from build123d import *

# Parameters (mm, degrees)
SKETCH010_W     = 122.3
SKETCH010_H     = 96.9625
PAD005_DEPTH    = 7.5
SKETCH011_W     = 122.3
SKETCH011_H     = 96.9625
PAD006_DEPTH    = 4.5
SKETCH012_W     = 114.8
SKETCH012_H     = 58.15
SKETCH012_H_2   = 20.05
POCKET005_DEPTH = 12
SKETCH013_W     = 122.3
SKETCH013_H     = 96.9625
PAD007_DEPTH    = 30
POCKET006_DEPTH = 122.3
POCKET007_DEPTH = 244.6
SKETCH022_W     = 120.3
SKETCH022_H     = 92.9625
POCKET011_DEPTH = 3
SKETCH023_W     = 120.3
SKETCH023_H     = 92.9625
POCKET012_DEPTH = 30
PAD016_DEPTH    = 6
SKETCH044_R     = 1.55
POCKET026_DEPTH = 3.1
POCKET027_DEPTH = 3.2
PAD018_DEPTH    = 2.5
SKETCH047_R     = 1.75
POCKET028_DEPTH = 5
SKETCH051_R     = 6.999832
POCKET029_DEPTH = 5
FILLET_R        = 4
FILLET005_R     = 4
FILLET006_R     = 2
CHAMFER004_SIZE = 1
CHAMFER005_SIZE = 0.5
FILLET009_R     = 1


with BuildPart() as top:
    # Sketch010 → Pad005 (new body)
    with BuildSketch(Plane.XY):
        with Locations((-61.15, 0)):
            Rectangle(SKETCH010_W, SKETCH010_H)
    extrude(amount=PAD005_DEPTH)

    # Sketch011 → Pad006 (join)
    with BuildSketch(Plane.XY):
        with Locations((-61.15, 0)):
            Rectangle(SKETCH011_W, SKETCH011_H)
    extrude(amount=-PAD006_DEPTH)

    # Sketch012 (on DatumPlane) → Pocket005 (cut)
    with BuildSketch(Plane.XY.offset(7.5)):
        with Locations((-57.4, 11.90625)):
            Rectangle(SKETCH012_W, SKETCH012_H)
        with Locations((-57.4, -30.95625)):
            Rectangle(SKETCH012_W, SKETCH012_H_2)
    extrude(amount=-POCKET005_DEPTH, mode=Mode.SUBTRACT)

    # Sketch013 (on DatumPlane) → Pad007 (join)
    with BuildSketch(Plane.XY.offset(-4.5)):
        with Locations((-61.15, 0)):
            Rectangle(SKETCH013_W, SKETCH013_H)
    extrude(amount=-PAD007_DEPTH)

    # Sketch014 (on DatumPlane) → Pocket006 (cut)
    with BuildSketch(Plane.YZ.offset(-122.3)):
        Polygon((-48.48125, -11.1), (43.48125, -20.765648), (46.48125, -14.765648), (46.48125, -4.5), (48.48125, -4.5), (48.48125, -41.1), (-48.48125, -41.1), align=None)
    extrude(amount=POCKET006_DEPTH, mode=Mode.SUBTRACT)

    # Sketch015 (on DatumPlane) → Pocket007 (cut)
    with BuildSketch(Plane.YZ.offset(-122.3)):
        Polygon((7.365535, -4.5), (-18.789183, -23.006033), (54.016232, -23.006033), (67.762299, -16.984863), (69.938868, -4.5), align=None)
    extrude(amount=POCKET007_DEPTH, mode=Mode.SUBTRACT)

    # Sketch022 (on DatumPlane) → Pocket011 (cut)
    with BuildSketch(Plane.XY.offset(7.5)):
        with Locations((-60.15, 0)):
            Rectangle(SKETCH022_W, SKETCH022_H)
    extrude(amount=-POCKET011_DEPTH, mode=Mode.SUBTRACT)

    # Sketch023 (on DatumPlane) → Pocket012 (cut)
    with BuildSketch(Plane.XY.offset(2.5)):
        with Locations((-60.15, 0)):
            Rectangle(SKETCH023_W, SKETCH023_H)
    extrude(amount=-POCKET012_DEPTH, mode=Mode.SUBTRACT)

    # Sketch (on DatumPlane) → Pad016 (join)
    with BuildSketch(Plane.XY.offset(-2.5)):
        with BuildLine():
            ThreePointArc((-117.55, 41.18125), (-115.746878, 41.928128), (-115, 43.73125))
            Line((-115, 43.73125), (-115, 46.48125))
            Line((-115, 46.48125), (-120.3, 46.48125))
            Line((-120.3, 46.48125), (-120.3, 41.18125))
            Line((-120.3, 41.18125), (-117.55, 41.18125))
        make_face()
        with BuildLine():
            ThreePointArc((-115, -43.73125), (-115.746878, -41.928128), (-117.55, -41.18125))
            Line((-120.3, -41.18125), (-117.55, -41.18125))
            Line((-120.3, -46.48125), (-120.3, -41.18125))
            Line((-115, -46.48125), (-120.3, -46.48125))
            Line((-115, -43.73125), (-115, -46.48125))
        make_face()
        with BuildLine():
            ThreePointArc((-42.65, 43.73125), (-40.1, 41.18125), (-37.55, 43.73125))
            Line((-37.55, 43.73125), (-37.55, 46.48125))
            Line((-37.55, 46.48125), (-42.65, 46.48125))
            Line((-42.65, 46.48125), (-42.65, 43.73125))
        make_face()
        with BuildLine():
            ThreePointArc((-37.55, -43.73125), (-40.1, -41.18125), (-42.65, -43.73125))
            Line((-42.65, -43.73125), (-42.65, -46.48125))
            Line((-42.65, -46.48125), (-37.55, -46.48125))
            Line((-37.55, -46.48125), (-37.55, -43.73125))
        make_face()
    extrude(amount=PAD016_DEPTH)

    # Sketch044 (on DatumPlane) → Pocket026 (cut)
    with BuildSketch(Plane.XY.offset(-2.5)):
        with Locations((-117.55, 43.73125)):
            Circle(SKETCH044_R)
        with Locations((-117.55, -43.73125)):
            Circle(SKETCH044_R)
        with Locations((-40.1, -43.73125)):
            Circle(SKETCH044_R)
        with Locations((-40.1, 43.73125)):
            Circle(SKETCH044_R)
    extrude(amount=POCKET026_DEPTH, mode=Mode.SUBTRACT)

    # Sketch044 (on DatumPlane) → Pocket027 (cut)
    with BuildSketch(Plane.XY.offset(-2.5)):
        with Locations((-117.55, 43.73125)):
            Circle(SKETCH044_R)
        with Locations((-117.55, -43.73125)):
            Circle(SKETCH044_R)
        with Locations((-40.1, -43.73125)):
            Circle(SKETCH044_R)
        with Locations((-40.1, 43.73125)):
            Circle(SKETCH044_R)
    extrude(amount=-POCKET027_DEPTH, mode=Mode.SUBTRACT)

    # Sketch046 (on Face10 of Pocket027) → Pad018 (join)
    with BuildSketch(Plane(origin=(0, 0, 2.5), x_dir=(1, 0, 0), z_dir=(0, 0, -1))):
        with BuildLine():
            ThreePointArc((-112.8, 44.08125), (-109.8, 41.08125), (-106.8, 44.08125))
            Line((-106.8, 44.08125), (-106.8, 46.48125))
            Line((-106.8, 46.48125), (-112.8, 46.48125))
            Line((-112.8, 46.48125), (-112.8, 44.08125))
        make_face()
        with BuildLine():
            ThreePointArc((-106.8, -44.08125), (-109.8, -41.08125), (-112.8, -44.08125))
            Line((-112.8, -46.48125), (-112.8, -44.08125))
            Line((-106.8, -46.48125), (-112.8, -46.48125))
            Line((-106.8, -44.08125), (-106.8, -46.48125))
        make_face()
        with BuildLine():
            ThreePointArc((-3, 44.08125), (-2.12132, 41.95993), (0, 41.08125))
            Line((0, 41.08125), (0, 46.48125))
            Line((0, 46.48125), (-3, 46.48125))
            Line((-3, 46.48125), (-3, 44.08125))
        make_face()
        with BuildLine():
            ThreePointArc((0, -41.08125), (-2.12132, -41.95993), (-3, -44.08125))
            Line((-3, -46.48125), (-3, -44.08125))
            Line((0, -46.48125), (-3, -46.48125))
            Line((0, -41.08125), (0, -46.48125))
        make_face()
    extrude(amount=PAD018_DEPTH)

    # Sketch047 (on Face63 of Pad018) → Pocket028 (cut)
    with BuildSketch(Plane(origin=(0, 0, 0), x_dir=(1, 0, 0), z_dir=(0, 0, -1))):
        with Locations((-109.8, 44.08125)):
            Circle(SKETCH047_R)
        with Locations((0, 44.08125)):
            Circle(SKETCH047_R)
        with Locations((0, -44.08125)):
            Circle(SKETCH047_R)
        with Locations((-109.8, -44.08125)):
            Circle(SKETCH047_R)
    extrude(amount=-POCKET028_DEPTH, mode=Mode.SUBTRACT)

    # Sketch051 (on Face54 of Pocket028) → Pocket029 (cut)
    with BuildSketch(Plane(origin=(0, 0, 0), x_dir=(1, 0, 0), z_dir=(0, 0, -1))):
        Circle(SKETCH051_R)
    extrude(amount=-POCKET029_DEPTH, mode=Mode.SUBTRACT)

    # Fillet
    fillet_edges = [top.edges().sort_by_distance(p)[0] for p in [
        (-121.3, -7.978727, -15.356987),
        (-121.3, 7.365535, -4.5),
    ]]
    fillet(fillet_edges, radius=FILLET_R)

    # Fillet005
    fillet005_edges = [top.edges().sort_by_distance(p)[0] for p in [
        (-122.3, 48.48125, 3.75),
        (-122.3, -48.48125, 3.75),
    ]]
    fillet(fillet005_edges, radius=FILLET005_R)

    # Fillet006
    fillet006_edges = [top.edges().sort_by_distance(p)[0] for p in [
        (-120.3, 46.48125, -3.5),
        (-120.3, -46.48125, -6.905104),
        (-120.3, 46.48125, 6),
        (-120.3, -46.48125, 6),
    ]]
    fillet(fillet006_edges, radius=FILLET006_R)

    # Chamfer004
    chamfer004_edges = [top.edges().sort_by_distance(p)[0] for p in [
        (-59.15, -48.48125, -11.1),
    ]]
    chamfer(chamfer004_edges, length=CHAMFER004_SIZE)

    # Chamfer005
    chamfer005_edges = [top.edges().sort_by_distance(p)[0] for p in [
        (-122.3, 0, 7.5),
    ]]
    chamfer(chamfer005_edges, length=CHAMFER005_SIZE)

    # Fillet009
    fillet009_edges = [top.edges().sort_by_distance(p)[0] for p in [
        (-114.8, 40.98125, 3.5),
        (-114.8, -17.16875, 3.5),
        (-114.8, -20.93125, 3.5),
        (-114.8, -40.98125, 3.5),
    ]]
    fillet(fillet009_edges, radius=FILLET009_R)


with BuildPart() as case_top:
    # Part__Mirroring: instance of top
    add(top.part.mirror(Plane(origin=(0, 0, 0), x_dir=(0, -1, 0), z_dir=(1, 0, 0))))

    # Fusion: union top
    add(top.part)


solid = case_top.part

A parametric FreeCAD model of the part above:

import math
import FreeCAD as App
import Part
import Sketcher

V = App.Vector
Q = App.Units.Quantity


def edges_at(feature, points):
    """Names of the edges that pass closest to the given points."""
    edges = feature.Shape.Edges
    near = lambda p: min(range(len(edges)), key=lambda i: edges[i].distToShape(Part.Vertex(*p))[0])
    return sorted({f"Edge{near(p) + 1}" for p in points})

doc = App.newDocument("Part")
body = doc.addObject("PartDesign::Body", "Body")

# Sketch on XY plane
sketch1 = body.newObject("Sketcher::SketchObject", "Sketch")
sketch1.AttachmentSupport = (doc.getObject("XY_Plane"), [""])
sketch1.MapMode = "FlatFace"
sketch1.addGeometry(Part.LineSegment(V(-122, 48, 0), V(-122, -48, 0)), False)
sketch1.addGeometry(Part.LineSegment(V(-122, -48, 0), V(0, -48, 0)), False)
sketch1.addGeometry(Part.LineSegment(V(0, -48, 0), V(0, 48, 0)), False)
sketch1.addGeometry(Part.LineSegment(V(0, 48, 0), V(-122, 48, 0)), False)
sketch1.addConstraint(Sketcher.Constraint("Coincident", 0, 2, 1, 1))
sketch1.addConstraint(Sketcher.Constraint("Coincident", 1, 2, 2, 1))
sketch1.addConstraint(Sketcher.Constraint("Coincident", 2, 2, 3, 1))
sketch1.addConstraint(Sketcher.Constraint("Coincident", 3, 2, 0, 1))
sketch1.addConstraint(Sketcher.Constraint("Vertical", 0))
sketch1.addConstraint(Sketcher.Constraint("Horizontal", 1))
sketch1.addConstraint(Sketcher.Constraint("Vertical", 2))
sketch1.addConstraint(Sketcher.Constraint("Horizontal", 3))
sketch1.addConstraint(Sketcher.Constraint("Symmetric", 1, 2, 2, 2, -1, 1))
sketch1.addConstraint(Sketcher.Constraint("DistanceX", 1, 1, 1, 2, Q("122.3 mm")))
sketch1.addConstraint(Sketcher.Constraint("DistanceY", 0, 2, 0, 1, Q("96.9625 mm")))
pad1 = body.newObject("PartDesign::Pad", "Pad")
pad1.Profile = sketch1
pad1.Length = 7.5

# Sketch on XY plane
sketch2 = body.newObject("Sketcher::SketchObject", "Sketch001")
sketch2.AttachmentSupport = (doc.getObject("XY_Plane"), [""])
sketch2.MapMode = "FlatFace"
sketch2.addGeometry(Part.LineSegment(V(-122, 48, 0), V(-122, -48, 0)), False)
sketch2.addGeometry(Part.LineSegment(V(-122, -48, 0), V(0, -48, 0)), False)
sketch2.addGeometry(Part.LineSegment(V(0, -48, 0), V(0, 48, 0)), False)
sketch2.addGeometry(Part.LineSegment(V(0, 48, 0), V(-122, 48, 0)), False)
sketch2.addConstraint(Sketcher.Constraint("Coincident", 0, 2, 1, 1))
sketch2.addConstraint(Sketcher.Constraint("Coincident", 1, 2, 2, 1))
sketch2.addConstraint(Sketcher.Constraint("Coincident", 2, 2, 3, 1))
sketch2.addConstraint(Sketcher.Constraint("Coincident", 3, 2, 0, 1))
sketch2.addConstraint(Sketcher.Constraint("Vertical", 0))
sketch2.addConstraint(Sketcher.Constraint("Horizontal", 1))
sketch2.addConstraint(Sketcher.Constraint("Vertical", 2))
sketch2.addConstraint(Sketcher.Constraint("Horizontal", 3))
sketch2.addConstraint(Sketcher.Constraint("Symmetric", 1, 2, 2, 2, -1, 1))
sketch2.addConstraint(Sketcher.Constraint("DistanceX", 1, 1, 1, 2, Q("122.3 mm")))
sketch2.addConstraint(Sketcher.Constraint("DistanceY", 0, 2, 0, 1, Q("96.9625 mm")))
pad2 = body.newObject("PartDesign::Pad", "Pad001")
pad2.Profile = sketch2
pad2.Length = 4.5
pad2.Reversed = True

# Sketch on XY plane
sketch3 = body.newObject("Sketcher::SketchObject", "Sketch002")
sketch3.AttachmentSupport = (doc.getObject("XY_Plane"), [""])
sketch3.MapMode = "FlatFace"
sketch3.AttachmentOffset = App.Placement(V(0, 0, 7.5), App.Rotation())
sketch3.addGeometry(Part.LineSegment(V(-115, 41, 0), V(-115, -17, 0)), False)
sketch3.addGeometry(Part.LineSegment(V(-115, -17, 0), V(0, -17, 0)), False)
sketch3.addGeometry(Part.LineSegment(V(0, -17, 0), V(0, 41, 0)), False)
sketch3.addGeometry(Part.LineSegment(V(0, 41, 0), V(-115, 41, 0)), False)
sketch3.addGeometry(Part.LineSegment(V(-115, -21, 0), V(-115, -41, 0)), False)
sketch3.addGeometry(Part.LineSegment(V(-115, -41, 0), V(0, -41, 0)), False)
sketch3.addGeometry(Part.LineSegment(V(0, -41, 0), V(0, -21, 0)), False)
sketch3.addGeometry(Part.LineSegment(V(0, -21, 0), V(-115, -21, 0)), False)
sketch3.addConstraint(Sketcher.Constraint("Coincident", 0, 2, 1, 1))
sketch3.addConstraint(Sketcher.Constraint("Coincident", 1, 2, 2, 1))
sketch3.addConstraint(Sketcher.Constraint("Coincident", 2, 2, 3, 1))
sketch3.addConstraint(Sketcher.Constraint("Coincident", 3, 2, 0, 1))
sketch3.addConstraint(Sketcher.Constraint("Coincident", 4, 2, 5, 1))
sketch3.addConstraint(Sketcher.Constraint("Coincident", 5, 2, 6, 1))
sketch3.addConstraint(Sketcher.Constraint("Coincident", 6, 2, 7, 1))
sketch3.addConstraint(Sketcher.Constraint("Coincident", 7, 2, 4, 1))
sketch3.addConstraint(Sketcher.Constraint("Vertical", 0))
sketch3.addConstraint(Sketcher.Constraint("Horizontal", 1))
sketch3.addConstraint(Sketcher.Constraint("Vertical", 2))
sketch3.addConstraint(Sketcher.Constraint("Horizontal", 3))
sketch3.addConstraint(Sketcher.Constraint("Vertical", 4))
sketch3.addConstraint(Sketcher.Constraint("Horizontal", 5))
sketch3.addConstraint(Sketcher.Constraint("Vertical", 6))
sketch3.addConstraint(Sketcher.Constraint("Horizontal", 7))
sketch3.addConstraint(Sketcher.Constraint("Symmetric", 2, 2, 5, 2, -1, 1))
sketch3.addConstraint(Sketcher.Constraint("PointOnObject", 1, 2, -2))
sketch3.addConstraint(Sketcher.Constraint("Vertical", 3, 2, 4, 2))
sketch3.addConstraint(Sketcher.Constraint("DistanceX", 1, 1, 1, 2, Q("114.8 mm")))
sketch3.addConstraint(Sketcher.Constraint("DistanceY", 0, 2, 0, 1, Q("58.15 mm")))
sketch3.addConstraint(Sketcher.Constraint("DistanceY", 4, 2, 4, 1, Q("20.05 mm")))
sketch3.addConstraint(Sketcher.Constraint("DistanceY", 4, 2, 0, 2, Q("23.8125 mm")))
pocket1 = body.newObject("PartDesign::Pocket", "Pocket")
pocket1.Profile = sketch3
pocket1.Length = 12

# Sketch on XY plane
sketch4 = body.newObject("Sketcher::SketchObject", "Sketch003")
sketch4.AttachmentSupport = (doc.getObject("XY_Plane"), [""])
sketch4.MapMode = "FlatFace"
sketch4.AttachmentOffset = App.Placement(V(0, 0, -4.5), App.Rotation())
sketch4.addGeometry(Part.LineSegment(V(-122, 48, 0), V(-122, -48, 0)), False)
sketch4.addGeometry(Part.LineSegment(V(-122, -48, 0), V(0, -48, 0)), False)
sketch4.addGeometry(Part.LineSegment(V(0, -48, 0), V(0, 48, 0)), False)
sketch4.addGeometry(Part.LineSegment(V(0, 48, 0), V(-122, 48, 0)), False)
sketch4.addConstraint(Sketcher.Constraint("Coincident", 0, 2, 1, 1))
sketch4.addConstraint(Sketcher.Constraint("Coincident", 1, 2, 2, 1))
sketch4.addConstraint(Sketcher.Constraint("Coincident", 2, 2, 3, 1))
sketch4.addConstraint(Sketcher.Constraint("Coincident", 3, 2, 0, 1))
sketch4.addConstraint(Sketcher.Constraint("Vertical", 0))
sketch4.addConstraint(Sketcher.Constraint("Horizontal", 1))
sketch4.addConstraint(Sketcher.Constraint("Vertical", 2))
sketch4.addConstraint(Sketcher.Constraint("Horizontal", 3))
sketch4.addConstraint(Sketcher.Constraint("Symmetric", 1, 2, 2, 2, -1, 1))
sketch4.addConstraint(Sketcher.Constraint("DistanceX", 1, 1, 1, 2, Q("122.3 mm")))
sketch4.addConstraint(Sketcher.Constraint("DistanceY", 0, 2, 0, 1, Q("96.9625 mm")))
pad3 = body.newObject("PartDesign::Pad", "Pad002")
pad3.Profile = sketch4
pad3.Length = 30
pad3.Reversed = True

# Sketch on YZ plane
sketch5 = body.newObject("Sketcher::SketchObject", "Sketch004")
sketch5.AttachmentSupport = (doc.getObject("YZ_Plane"), [""])
sketch5.MapMode = "FlatFace"
sketch5.AttachmentOffset = App.Placement(V(0, 0, -122.3), App.Rotation())
sketch5.addGeometry(Part.LineSegment(V(43.5, -20.8, 0), V(-48.5, -11.1, 0)), False)
sketch5.addGeometry(Part.LineSegment(V(-48.5, -11.1, 0), V(-48.5, -41.1, 0)), False)
sketch5.addGeometry(Part.LineSegment(V(-48.5, -41.1, 0), V(48.5, -41.1, 0)), False)
sketch5.addGeometry(Part.LineSegment(V(48.5, -41.1, 0), V(48.5, -4.5, 0)), False)
sketch5.addGeometry(Part.LineSegment(V(48.5, -4.5, 0), V(46.5, -4.5, 0)), False)
sketch5.addGeometry(Part.LineSegment(V(46.5, -4.5, 0), V(46.5, -14.8, 0)), False)
sketch5.addGeometry(Part.LineSegment(V(46.5, -14.8, 0), V(43.5, -20.8, 0)), False)
sketch5.addConstraint(Sketcher.Constraint("Coincident", 0, 2, 1, 1))
sketch5.addConstraint(Sketcher.Constraint("Coincident", 1, 2, 2, 1))
sketch5.addConstraint(Sketcher.Constraint("Coincident", 2, 2, 3, 1))
sketch5.addConstraint(Sketcher.Constraint("Coincident", 3, 2, 4, 1))
sketch5.addConstraint(Sketcher.Constraint("Coincident", 4, 2, 5, 1))
sketch5.addConstraint(Sketcher.Constraint("Coincident", 5, 2, 6, 1))
sketch5.addConstraint(Sketcher.Constraint("Coincident", 6, 2, 0, 1))
sketch5.addConstraint(Sketcher.Constraint("Vertical", 1))
sketch5.addConstraint(Sketcher.Constraint("Horizontal", 2))
sketch5.addConstraint(Sketcher.Constraint("Vertical", 3))
sketch5.addConstraint(Sketcher.Constraint("Horizontal", 4))
sketch5.addConstraint(Sketcher.Constraint("Vertical", 5))
sketch5.addConstraint(Sketcher.Constraint("DistanceX", 4, 2, 4, 1, Q("2 mm")))
sketch5.addConstraint(Sketcher.Constraint("DistanceY", 1, 2, 1, 1, Q("30 mm")))
sketch5.addConstraint(Sketcher.Constraint("Angle", 0, Q("174 deg")))
sketch5.addConstraint(Sketcher.Constraint("DistanceY", 3, 1, 3, 2, Q("36.6 mm")))
sketch5.addConstraint(Sketcher.Constraint("DistanceX", 6, 2, 5, 2, Q("3 mm")))
sketch5.addConstraint(Sketcher.Constraint("DistanceY", 6, 2, 5, 2, Q("6 mm")))
sketch5.addConstraint(Sketcher.Constraint("DistanceY", 0, 2, -1, 1, Q("11.1 mm")))
sketch5.addConstraint(Sketcher.Constraint("DistanceX", 2, 1, 2, 2, Q("96.9625 mm")))
sketch5.addConstraint(Sketcher.Constraint("DistanceX", 0, 2, -1, 1, Q("48.48125 mm")))
pocket2 = body.newObject("PartDesign::Pocket", "Pocket001")
pocket2.Profile = sketch5
pocket2.Length = 122.3
pocket2.Reversed = True

# Sketch on YZ plane
sketch6 = body.newObject("Sketcher::SketchObject", "Sketch005")
sketch6.AttachmentSupport = (doc.getObject("YZ_Plane"), [""])
sketch6.MapMode = "FlatFace"
sketch6.AttachmentOffset = App.Placement(V(0, 0, -122.3), App.Rotation())
sketch6.addGeometry(Part.LineSegment(V(7, -4, 0), V(-19, -23, 0)), False)
sketch6.addGeometry(Part.LineSegment(V(-19, -23, 0), V(54, -23, 0)), False)
sketch6.addGeometry(Part.LineSegment(V(54, -23, 0), V(68, -17, 0)), False)
sketch6.addGeometry(Part.LineSegment(V(68, -17, 0), V(70, -4, 0)), False)
sketch6.addGeometry(Part.LineSegment(V(70, -4, 0), V(7, -4, 0)), False)
sketch6.addConstraint(Sketcher.Constraint("Coincident", 0, 2, 1, 1))
sketch6.addConstraint(Sketcher.Constraint("Coincident", 1, 2, 2, 1))
sketch6.addConstraint(Sketcher.Constraint("Coincident", 2, 2, 3, 1))
sketch6.addConstraint(Sketcher.Constraint("Coincident", 3, 2, 4, 1))
sketch6.addConstraint(Sketcher.Constraint("Coincident", 4, 2, 0, 1))
sketch6.addConstraint(Sketcher.Constraint("Horizontal", 1))
sketch6.addConstraint(Sketcher.Constraint("Horizontal", 4))
sketch6.addConstraint(Sketcher.Constraint("DistanceY", 3, 2, -1, 1, Q("4.5 mm")))
sketch6.addConstraint(Sketcher.Constraint("DistanceX", -1, 1, 2, 2, Q("67.762299 mm")))
sketch6.addConstraint(Sketcher.Constraint("Distance", 2, Q("15.00696 mm")))
sketch6.addConstraint(Sketcher.Constraint("Distance", 3, Q("12.673171 mm")))
sketch6.addConstraint(Sketcher.Constraint("DistanceX", 1, 1, 1, 2, Q("72.805415 mm")))
sketch6.addConstraint(Sketcher.Constraint("DistanceX", 4, 2, 4, 1, Q("62.573333 mm")))
sketch6.addConstraint(Sketcher.Constraint("DistanceX", -1, 1, 3, 2, Q("69.938868 mm")))
sketch6.addConstraint(Sketcher.Constraint("DistanceY", 1, 2, 2, 2, Q("6.02117 mm")))
pocket3 = body.newObject("PartDesign::Pocket", "Pocket002")
pocket3.Profile = sketch6
pocket3.Length = 244.6
pocket3.Reversed = True

# Sketch on XY plane
sketch7 = body.newObject("Sketcher::SketchObject", "Sketch006")
sketch7.AttachmentSupport = (doc.getObject("XY_Plane"), [""])
sketch7.MapMode = "FlatFace"
sketch7.AttachmentOffset = App.Placement(V(0, 0, 7.5), App.Rotation())
sketch7.addGeometry(Part.LineSegment(V(-120, 46, 0), V(-120, -46, 0)), False)
sketch7.addGeometry(Part.LineSegment(V(-120, -46, 0), V(0, -46, 0)), False)
sketch7.addGeometry(Part.LineSegment(V(0, -46, 0), V(0, 46, 0)), False)
sketch7.addGeometry(Part.LineSegment(V(0, 46, 0), V(-120, 46, 0)), False)
sketch7.addConstraint(Sketcher.Constraint("Coincident", 0, 2, 1, 1))
sketch7.addConstraint(Sketcher.Constraint("Coincident", 1, 2, 2, 1))
sketch7.addConstraint(Sketcher.Constraint("Coincident", 2, 2, 3, 1))
sketch7.addConstraint(Sketcher.Constraint("Coincident", 3, 2, 0, 1))
sketch7.addConstraint(Sketcher.Constraint("Vertical", 0))
sketch7.addConstraint(Sketcher.Constraint("Horizontal", 1))
sketch7.addConstraint(Sketcher.Constraint("Vertical", 2))
sketch7.addConstraint(Sketcher.Constraint("Horizontal", 3))
sketch7.addConstraint(Sketcher.Constraint("Symmetric", 1, 2, 2, 2, -1, 1))
sketch7.addConstraint(Sketcher.Constraint("DistanceX", 1, 1, 1, 2, Q("120.3 mm")))
sketch7.addConstraint(Sketcher.Constraint("DistanceY", 0, 2, 0, 1, Q("92.9625 mm")))
pocket4 = body.newObject("PartDesign::Pocket", "Pocket003")
pocket4.Profile = sketch7
pocket4.Length = 3

# Sketch on XY plane
sketch8 = body.newObject("Sketcher::SketchObject", "Sketch007")
sketch8.AttachmentSupport = (doc.getObject("XY_Plane"), [""])
sketch8.MapMode = "FlatFace"
sketch8.AttachmentOffset = App.Placement(V(0, 0, 2.5), App.Rotation())
sketch8.addGeometry(Part.LineSegment(V(-120, 46, 0), V(-120, -46, 0)), False)
sketch8.addGeometry(Part.LineSegment(V(-120, -46, 0), V(0, -46, 0)), False)
sketch8.addGeometry(Part.LineSegment(V(0, -46, 0), V(0, 46, 0)), False)
sketch8.addGeometry(Part.LineSegment(V(0, 46, 0), V(-120, 46, 0)), False)
sketch8.addConstraint(Sketcher.Constraint("Coincident", 0, 2, 1, 1))
sketch8.addConstraint(Sketcher.Constraint("Coincident", 1, 2, 2, 1))
sketch8.addConstraint(Sketcher.Constraint("Coincident", 2, 2, 3, 1))
sketch8.addConstraint(Sketcher.Constraint("Coincident", 3, 2, 0, 1))
sketch8.addConstraint(Sketcher.Constraint("Vertical", 0))
sketch8.addConstraint(Sketcher.Constraint("Horizontal", 1))
sketch8.addConstraint(Sketcher.Constraint("Vertical", 2))
sketch8.addConstraint(Sketcher.Constraint("Horizontal", 3))
sketch8.addConstraint(Sketcher.Constraint("Symmetric", 1, 2, 2, 2, -1, 1))
sketch8.addConstraint(Sketcher.Constraint("DistanceX", 1, 1, 1, 2, Q("120.3 mm")))
sketch8.addConstraint(Sketcher.Constraint("DistanceY", 0, 2, 0, 1, Q("92.9625 mm")))
pocket5 = body.newObject("PartDesign::Pocket", "Pocket004")
pocket5.Profile = sketch8
pocket5.Length = 30

# Sketch on XY plane
sketch9 = body.newObject("Sketcher::SketchObject", "Sketch008")
sketch9.AttachmentSupport = (doc.getObject("XY_Plane"), [""])
sketch9.MapMode = "FlatFace"
sketch9.AttachmentOffset = App.Placement(V(0, 0, -2.5), App.Rotation())
sketch9.addGeometry(Part.ArcOfCircle(Part.Circle(V(-117.6, 43.7, 0), V(0, 0, 1), 2.6), math.radians(-90), math.radians(0)), False)
sketch9.addGeometry(Part.LineSegment(V(-115, 43.7, 0), V(-115, 46.5, 0)), False)
sketch9.addGeometry(Part.LineSegment(V(-115, 46.5, 0), V(-120.3, 46.5, 0)), False)
sketch9.addGeometry(Part.LineSegment(V(-120.3, 46.5, 0), V(-120.3, 41.2, 0)), False)
sketch9.addGeometry(Part.LineSegment(V(-120.3, 41.2, 0), V(-117.5, 41.2, 0)), False)
sketch9.addGeometry(Part.ArcOfCircle(Part.Circle(V(-117.6, -43.7, 0), V(0, 0, 1), 2.6), math.radians(0), math.radians(90)), False)
sketch9.addGeometry(Part.LineSegment(V(-117.5, -41.2, 0), V(-120.3, -41.2, 0)), False)
sketch9.addGeometry(Part.LineSegment(V(-120.3, -41.2, 0), V(-120.3, -46.5, 0)), False)
sketch9.addGeometry(Part.LineSegment(V(-120.3, -46.5, 0), V(-115, -46.5, 0)), False)
sketch9.addGeometry(Part.LineSegment(V(-115, -46.5, 0), V(-115, -43.7, 0)), False)
sketch9.addGeometry(Part.ArcOfCircle(Part.Circle(V(-40.1, 43.7, 0), V(0, 0, 1), 2.5), math.radians(180), math.radians(360)), False)
sketch9.addGeometry(Part.LineSegment(V(-37.5, 43.7, 0), V(-37.5, 46.5, 0)), False)
sketch9.addGeometry(Part.LineSegment(V(-37.5, 46.5, 0), V(-42.6, 46.5, 0)), False)
sketch9.addGeometry(Part.LineSegment(V(-42.6, 46.5, 0), V(-42.6, 43.7, 0)), False)
sketch9.addGeometry(Part.ArcOfCircle(Part.Circle(V(-40.1, -43.7, 0), V(0, 0, 1), 2.5), math.radians(0), math.radians(180)), False)
sketch9.addGeometry(Part.LineSegment(V(-42.6, -43.7, 0), V(-42.6, -46.5, 0)), False)
sketch9.addGeometry(Part.LineSegment(V(-42.6, -46.5, 0), V(-37.5, -46.5, 0)), False)
sketch9.addGeometry(Part.LineSegment(V(-37.5, -46.5, 0), V(-37.5, -43.7, 0)), False)
sketch9.addConstraint(Sketcher.Constraint("Tangent", 0, 2, 1, 1))
sketch9.addConstraint(Sketcher.Constraint("Coincident", 1, 2, 2, 1))
sketch9.addConstraint(Sketcher.Constraint("Coincident", 2, 2, 3, 1))
sketch9.addConstraint(Sketcher.Constraint("Coincident", 3, 2, 4, 1))
sketch9.addConstraint(Sketcher.Constraint("Tangent", 4, 2, 0, 1))
sketch9.addConstraint(Sketcher.Constraint("Tangent", 5, 2, 6, 1))
sketch9.addConstraint(Sketcher.Constraint("Coincident", 6, 2, 7, 1))
sketch9.addConstraint(Sketcher.Constraint("Coincident", 7, 2, 8, 1))
sketch9.addConstraint(Sketcher.Constraint("Coincident", 8, 2, 9, 1))
sketch9.addConstraint(Sketcher.Constraint("Tangent", 9, 2, 5, 1))
sketch9.addConstraint(Sketcher.Constraint("Tangent", 10, 2, 11, 1))
sketch9.addConstraint(Sketcher.Constraint("Coincident", 11, 2, 12, 1))
sketch9.addConstraint(Sketcher.Constraint("Coincident", 12, 2, 13, 1))
sketch9.addConstraint(Sketcher.Constraint("Tangent", 13, 2, 10, 1))
sketch9.addConstraint(Sketcher.Constraint("Tangent", 14, 2, 15, 1))
sketch9.addConstraint(Sketcher.Constraint("Coincident", 15, 2, 16, 1))
sketch9.addConstraint(Sketcher.Constraint("Coincident", 16, 2, 17, 1))
sketch9.addConstraint(Sketcher.Constraint("Tangent", 17, 2, 14, 1))
sketch9.addConstraint(Sketcher.Constraint("Vertical", 1))
sketch9.addConstraint(Sketcher.Constraint("Horizontal", 2))
sketch9.addConstraint(Sketcher.Constraint("Vertical", 3))
sketch9.addConstraint(Sketcher.Constraint("Horizontal", 4))
sketch9.addConstraint(Sketcher.Constraint("Horizontal", 6))
sketch9.addConstraint(Sketcher.Constraint("Vertical", 7))
sketch9.addConstraint(Sketcher.Constraint("Horizontal", 8))
sketch9.addConstraint(Sketcher.Constraint("Vertical", 9))
sketch9.addConstraint(Sketcher.Constraint("Vertical", 11))
sketch9.addConstraint(Sketcher.Constraint("Horizontal", 12))
sketch9.addConstraint(Sketcher.Constraint("Vertical", 13))
sketch9.addConstraint(Sketcher.Constraint("Vertical", 15))
sketch9.addConstraint(Sketcher.Constraint("Horizontal", 16))
sketch9.addConstraint(Sketcher.Constraint("Vertical", 17))
sketch9.addConstraint(Sketcher.Constraint("Equal", 0, 5))
sketch9.addConstraint(Sketcher.Constraint("Equal", 5, 10))
sketch9.addConstraint(Sketcher.Constraint("Equal", 10, 14))
sketch9.addConstraint(Sketcher.Constraint("Symmetric", 0, 3, 5, 3, -1))
sketch9.addConstraint(Sketcher.Constraint("Symmetric", 10, 3, 14, 3, -1))
sketch9.addConstraint(Sketcher.Constraint("Symmetric", 2, 2, 7, 2, -1))
sketch9.addConstraint(Sketcher.Constraint("Horizontal", 0, 3, 10, 3))
sketch9.addConstraint(Sketcher.Constraint("Horizontal", 2, 2, 11, 2))
sketch9.addConstraint(Sketcher.Constraint("Horizontal", 8, 2, 15, 2))
sketch9.addConstraint(Sketcher.Constraint("Equal", 6, 1))
sketch9.addConstraint(Sketcher.Constraint("Radius", 0, Q("2.550001 mm")))
sketch9.addConstraint(Sketcher.Constraint("DistanceX", 2, 2, 2, 1, Q("5.3 mm")))
sketch9.addConstraint(Sketcher.Constraint("DistanceX", 0, 2, -1, 1, Q("115 mm")))
sketch9.addConstraint(Sketcher.Constraint("DistanceX", 0, 3, 10, 2, Q("80.000001 mm")))
sketch9.addConstraint(Sketcher.Constraint("DistanceY", 5, 3, 0, 3, Q("87.462502 mm")))
pad4 = body.newObject("PartDesign::Pad", "Pad003")
pad4.Profile = sketch9
pad4.Length = 6

# Sketch on XY plane
sketch10 = body.newObject("Sketcher::SketchObject", "Sketch009")
sketch10.AttachmentSupport = (doc.getObject("XY_Plane"), [""])
sketch10.MapMode = "FlatFace"
sketch10.AttachmentOffset = App.Placement(V(0, 0, -2.5), App.Rotation())
sketch10.addGeometry(Part.Circle(V(-117.5, 43.7, 0), V(0, 0, 1), 1.6), False)
sketch10.addGeometry(Part.Circle(V(-117.5, -43.7, 0), V(0, 0, 1), 1.6), False)
sketch10.addGeometry(Part.Circle(V(-40.1, -43.7, 0), V(0, 0, 1), 1.6), False)
sketch10.addGeometry(Part.Circle(V(-40.1, 43.7, 0), V(0, 0, 1), 1.6), False)
sketch10.addConstraint(Sketcher.Constraint("Equal", 0, 1))
sketch10.addConstraint(Sketcher.Constraint("Equal", 1, 2))
sketch10.addConstraint(Sketcher.Constraint("Equal", 2, 3))
sketch10.addConstraint(Sketcher.Constraint("Symmetric", 0, 3, 1, 3, -1))
sketch10.addConstraint(Sketcher.Constraint("Symmetric", 2, 3, 3, 3, -1))
sketch10.addConstraint(Sketcher.Constraint("Horizontal", 1, 3, 2, 3))
sketch10.addConstraint(Sketcher.Constraint("Diameter", 0, Q("3.1 mm")))
sketch10.addConstraint(Sketcher.Constraint("DistanceX", 2, 3, -1, 1, Q("40.1 mm")))
sketch10.addConstraint(Sketcher.Constraint("DistanceX", 0, 3, -1, 1, Q("117.55 mm")))
sketch10.addConstraint(Sketcher.Constraint("DistanceY", 1, 3, 0, 3, Q("87.4625 mm")))
pocket6 = body.newObject("PartDesign::Pocket", "Pocket005")
pocket6.Profile = sketch10
pocket6.Length = 3.1
pocket6.Reversed = True

# Sketch on XY plane
sketch11 = body.newObject("Sketcher::SketchObject", "Sketch010")
sketch11.AttachmentSupport = (doc.getObject("XY_Plane"), [""])
sketch11.MapMode = "FlatFace"
sketch11.AttachmentOffset = App.Placement(V(0, 0, -2.5), App.Rotation())
sketch11.addGeometry(Part.Circle(V(-117.5, 43.7, 0), V(0, 0, 1), 1.6), False)
sketch11.addGeometry(Part.Circle(V(-117.5, -43.7, 0), V(0, 0, 1), 1.6), False)
sketch11.addGeometry(Part.Circle(V(-40.1, -43.7, 0), V(0, 0, 1), 1.6), False)
sketch11.addGeometry(Part.Circle(V(-40.1, 43.7, 0), V(0, 0, 1), 1.6), False)
sketch11.addConstraint(Sketcher.Constraint("Equal", 0, 1))
sketch11.addConstraint(Sketcher.Constraint("Equal", 1, 2))
sketch11.addConstraint(Sketcher.Constraint("Equal", 2, 3))
sketch11.addConstraint(Sketcher.Constraint("Symmetric", 0, 3, 1, 3, -1))
sketch11.addConstraint(Sketcher.Constraint("Symmetric", 2, 3, 3, 3, -1))
sketch11.addConstraint(Sketcher.Constraint("Horizontal", 1, 3, 2, 3))
sketch11.addConstraint(Sketcher.Constraint("Diameter", 0, Q("3.1 mm")))
sketch11.addConstraint(Sketcher.Constraint("DistanceX", 2, 3, -1, 1, Q("40.1 mm")))
sketch11.addConstraint(Sketcher.Constraint("DistanceX", 0, 3, -1, 1, Q("117.55 mm")))
sketch11.addConstraint(Sketcher.Constraint("DistanceY", 1, 3, 0, 3, Q("87.4625 mm")))
pocket7 = body.newObject("PartDesign::Pocket", "Pocket006")
pocket7.Profile = sketch11
pocket7.Length = 3.2

# Sketch on XY plane
sketch12 = body.newObject("Sketcher::SketchObject", "Sketch011")
sketch12.AttachmentSupport = (doc.getObject("XY_Plane"), [""])
sketch12.MapMode = "FlatFace"
sketch12.AttachmentOffset = App.Placement(V(0, 0, 2.5), App.Rotation())
sketch12.addGeometry(Part.ArcOfCircle(Part.Circle(V(-109.8, -44.1, 0), V(0, 0, 1), 3), math.radians(0), math.radians(180)), False)
sketch12.addGeometry(Part.LineSegment(V(-106.8, -44.1, 0), V(-106.8, -46.5, 0)), False)
sketch12.addGeometry(Part.LineSegment(V(-106.8, -46.5, 0), V(-112.8, -46.5, 0)), False)
sketch12.addGeometry(Part.LineSegment(V(-112.8, -46.5, 0), V(-112.8, -44.1, 0)), False)
sketch12.addGeometry(Part.ArcOfCircle(Part.Circle(V(-109.8, 44.1, 0), V(0, 0, 1), 3), math.radians(180), math.radians(360)), False)
sketch12.addGeometry(Part.LineSegment(V(-112.8, 44.1, 0), V(-112.8, 46.5, 0)), False)
sketch12.addGeometry(Part.LineSegment(V(-112.8, 46.5, 0), V(-106.8, 46.5, 0)), False)
sketch12.addGeometry(Part.LineSegment(V(-106.8, 46.5, 0), V(-106.8, 44.1, 0)), False)
sketch12.addGeometry(Part.ArcOfCircle(Part.Circle(V(0, -44.1, 0), V(0, 0, 1), 3), math.radians(90), math.radians(180)), False)
sketch12.addGeometry(Part.LineSegment(V(0, -41.1, 0), V(0, -46.5, 0)), False)
sketch12.addGeometry(Part.LineSegment(V(0, -46.5, 0), V(-3, -46.5, 0)), False)
sketch12.addGeometry(Part.LineSegment(V(-3, -46.5, 0), V(-3, -44.1, 0)), False)
sketch12.addGeometry(Part.ArcOfCircle(Part.Circle(V(0, 44.1, 0), V(0, 0, 1), 3), math.radians(-180), math.radians(-90)), False)
sketch12.addGeometry(Part.LineSegment(V(-3, 44.1, 0), V(-3, 46.5, 0)), False)
sketch12.addGeometry(Part.LineSegment(V(-3, 46.5, 0), V(0, 46.5, 0)), False)
sketch12.addGeometry(Part.LineSegment(V(0, 46.5, 0), V(0, 41.1, 0)), False)
sketch12.addConstraint(Sketcher.Constraint("Tangent", 0, 1, 1, 1))
sketch12.addConstraint(Sketcher.Constraint("Coincident", 1, 2, 2, 1))
sketch12.addConstraint(Sketcher.Constraint("Coincident", 2, 2, 3, 1))
sketch12.addConstraint(Sketcher.Constraint("Tangent", 3, 2, 0, 2))
sketch12.addConstraint(Sketcher.Constraint("Tangent", 4, 1, 5, 1))
sketch12.addConstraint(Sketcher.Constraint("Coincident", 5, 2, 6, 1))
sketch12.addConstraint(Sketcher.Constraint("Coincident", 6, 2, 7, 1))
sketch12.addConstraint(Sketcher.Constraint("Tangent", 7, 2, 4, 2))
sketch12.addConstraint(Sketcher.Constraint("Coincident", 8, 1, 9, 1))
sketch12.addConstraint(Sketcher.Constraint("Coincident", 9, 2, 10, 1))
sketch12.addConstraint(Sketcher.Constraint("Coincident", 10, 2, 11, 1))
sketch12.addConstraint(Sketcher.Constraint("Tangent", 11, 2, 8, 2))
sketch12.addConstraint(Sketcher.Constraint("Tangent", 12, 1, 13, 1))
sketch12.addConstraint(Sketcher.Constraint("Coincident", 13, 2, 14, 1))
sketch12.addConstraint(Sketcher.Constraint("Coincident", 14, 2, 15, 1))
sketch12.addConstraint(Sketcher.Constraint("Coincident", 15, 2, 12, 2))
sketch12.addConstraint(Sketcher.Constraint("Vertical", 1))
sketch12.addConstraint(Sketcher.Constraint("Horizontal", 2))
sketch12.addConstraint(Sketcher.Constraint("Vertical", 3))
sketch12.addConstraint(Sketcher.Constraint("Vertical", 5))
sketch12.addConstraint(Sketcher.Constraint("Horizontal", 6))
sketch12.addConstraint(Sketcher.Constraint("Vertical", 7))
sketch12.addConstraint(Sketcher.Constraint("Vertical", 9))
sketch12.addConstraint(Sketcher.Constraint("Horizontal", 10))
sketch12.addConstraint(Sketcher.Constraint("Vertical", 11))
sketch12.addConstraint(Sketcher.Constraint("Vertical", 13))
sketch12.addConstraint(Sketcher.Constraint("Horizontal", 14))
sketch12.addConstraint(Sketcher.Constraint("Vertical", 15))
sketch12.addConstraint(Sketcher.Constraint("Equal", 0, 4))
sketch12.addConstraint(Sketcher.Constraint("Equal", 4, 8))
sketch12.addConstraint(Sketcher.Constraint("Equal", 8, 12))
sketch12.addConstraint(Sketcher.Constraint("Symmetric", 8, 3, 12, 3, -1, 1))
sketch12.addConstraint(Sketcher.Constraint("Symmetric", 9, 2, 14, 2, -1, 1))
sketch12.addConstraint(Sketcher.Constraint("Symmetric", 0, 3, 4, 3, -1))
sketch12.addConstraint(Sketcher.Constraint("PointOnObject", 8, 3, -2))
sketch12.addConstraint(Sketcher.Constraint("PointOnObject", 8, 1, -2))
sketch12.addConstraint(Sketcher.Constraint("Horizontal", 0, 3, 8, 3))
sketch12.addConstraint(Sketcher.Constraint("Horizontal", 2, 2, 9, 2))
sketch12.addConstraint(Sketcher.Constraint("Horizontal", 6, 2, 13, 2))
sketch12.addConstraint(Sketcher.Constraint("Radius", 0, Q("3 mm")))
sketch12.addConstraint(Sketcher.Constraint("DistanceY", 1, 2, 1, 1, Q("2.4 mm")))
sketch12.addConstraint(Sketcher.Constraint("DistanceX", 0, 3, -1, 1, Q("109.8 mm")))
sketch12.addConstraint(Sketcher.Constraint("DistanceY", 0, 3, 4, 3, Q("88.1625 mm")))
pad5 = body.newObject("PartDesign::Pad", "Pad004")
pad5.Profile = sketch12
pad5.Length = 2.5
pad5.Reversed = True

# Sketch on XY plane
sketch13 = body.newObject("Sketcher::SketchObject", "Sketch012")
sketch13.AttachmentSupport = (doc.getObject("XY_Plane"), [""])
sketch13.MapMode = "FlatFace"
sketch13.addGeometry(Part.Circle(V(-109.8, -44.1, 0), V(0, 0, 1), 1.8), False)
sketch13.addGeometry(Part.Circle(V(0, -44.1, 0), V(0, 0, 1), 1.8), False)
sketch13.addGeometry(Part.Circle(V(0, 44.1, 0), V(0, 0, 1), 1.8), False)
sketch13.addGeometry(Part.Circle(V(-109.8, 44.1, 0), V(0, 0, 1), 1.8), False)
sketch13.addConstraint(Sketcher.Constraint("Equal", 0, 1))
sketch13.addConstraint(Sketcher.Constraint("Equal", 1, 2))
sketch13.addConstraint(Sketcher.Constraint("Equal", 2, 3))
sketch13.addConstraint(Sketcher.Constraint("Symmetric", 1, 3, 2, 3, -1, 1))
sketch13.addConstraint(Sketcher.Constraint("Symmetric", 0, 3, 3, 3, -1))
sketch13.addConstraint(Sketcher.Constraint("PointOnObject", 1, 3, -2))
sketch13.addConstraint(Sketcher.Constraint("Horizontal", 0, 3, 1, 3))
sketch13.addConstraint(Sketcher.Constraint("Diameter", 0, Q("3.5 mm")))
sketch13.addConstraint(Sketcher.Constraint("DistanceX", 0, 3, -1, 1, Q("109.8 mm")))
sketch13.addConstraint(Sketcher.Constraint("DistanceY", 1, 3, 2, 3, Q("88.1625 mm")))
pocket8 = body.newObject("PartDesign::Pocket", "Pocket007")
pocket8.Profile = sketch13
pocket8.Length = 5
pocket8.Reversed = True

# Sketch on XY plane
sketch14 = body.newObject("Sketcher::SketchObject", "Sketch013")
sketch14.AttachmentSupport = (doc.getObject("XY_Plane"), [""])
sketch14.MapMode = "FlatFace"
sketch14.addGeometry(Part.Circle(V(0, 0, 0), V(0, 0, 1), 7), False)
sketch14.addConstraint(Sketcher.Constraint("Coincident", 0, 3, -1, 1))
sketch14.addConstraint(Sketcher.Constraint("Diameter", 0, Q("13.999664 mm")))
pocket9 = body.newObject("PartDesign::Pocket", "Pocket008")
pocket9.Profile = sketch14
pocket9.Length = 5
pocket9.Reversed = True
doc.recompute()

fillet = body.newObject("PartDesign::Fillet", "Fillet")
fillet.Base = (pocket9, edges_at(pocket9, [(-121.3, -7.979, -15.357), (-121.3, 7.366, -4.5)]))
fillet.Radius = 4
doc.recompute()

fillet2 = body.newObject("PartDesign::Fillet", "Fillet001")
fillet2.Base = (fillet, edges_at(fillet, [(-122.3, 48.481, 1.5), (-122.3, -48.481, -1.8)]))
fillet2.Radius = 4
doc.recompute()

fillet3 = body.newObject("PartDesign::Fillet", "Fillet002")
fillet3.Base = (fillet2, edges_at(fillet2, [
    (-120.3, 46.481, -3.5),
    (-120.3, -46.481, -6.905),
    (-120.3, 46.481, 6),
    (-120.3, -46.481, 6),
]))
fillet3.Radius = 2
doc.recompute()

chamfer = body.newObject("PartDesign::Chamfer", "Chamfer")
chamfer.Base = (fillet3, edges_at(fillet3, [(-59.15, -48.481, -11.1)]))
chamfer.Size = 1
doc.recompute()

chamfer2 = body.newObject("PartDesign::Chamfer", "Chamfer001")
chamfer2.Base = (chamfer, edges_at(chamfer, [(-122.3, 0, 7.5)]))
chamfer2.Size = 0.5
doc.recompute()

fillet4 = body.newObject("PartDesign::Fillet", "Fillet003")
fillet4.Base = (chamfer2, edges_at(chamfer2, [
    (-114.8, 40.981, 3.5),
    (-114.8, -17.169, 3.5),
    (-114.8, -20.931, 3.5),
    (-114.8, -40.981, 3.5),
]))
fillet4.Radius = 1
body2 = doc.addObject("PartDesign::Body", "Body001")
doc.recompute()

mirroring = doc.addObject("Part::Mirroring", "Mirroring")
mirroring.Source = body
mirroring.Base = V(0, 0, 0)
mirroring.Normal = V(1, 0, 0)
body2.BaseFeature = mirroring
doc.recompute()

boolean = body2.newObject("PartDesign::Boolean", "Boolean")
boolean.Type = "Fuse"
boolean.addObjects([body])
mirroring.Visibility = False

doc.recompute()
